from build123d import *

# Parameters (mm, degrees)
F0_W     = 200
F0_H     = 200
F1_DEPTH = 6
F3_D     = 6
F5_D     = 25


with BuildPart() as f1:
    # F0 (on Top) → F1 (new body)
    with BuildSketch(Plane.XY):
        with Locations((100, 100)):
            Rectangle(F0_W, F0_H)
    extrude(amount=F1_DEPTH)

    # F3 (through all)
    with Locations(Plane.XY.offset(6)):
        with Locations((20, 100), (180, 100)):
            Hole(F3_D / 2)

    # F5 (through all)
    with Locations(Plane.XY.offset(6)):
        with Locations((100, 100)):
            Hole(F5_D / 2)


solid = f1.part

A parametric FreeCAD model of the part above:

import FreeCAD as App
import Part
import Sketcher

V = App.Vector

doc = App.newDocument("Part")
body = doc.addObject("PartDesign::Body", "Body")

# Sketch on XY plane
sketch1 = body.newObject("Sketcher::SketchObject", "Sketch")
sketch1.AttachmentSupport = (doc.getObject("XY_Plane"), [""])
sketch1.MapMode = "FlatFace"
sketch1.addGeometry(Part.LineSegment(V(0, 200, 0), V(0, 0, 0)), False)
sketch1.addGeometry(Part.LineSegment(V(0, 0, 0), V(200, 0, 0)), False)
sketch1.addGeometry(Part.LineSegment(V(200, 0, 0), V(200, 200, 0)), False)
sketch1.addGeometry(Part.LineSegment(V(200, 200, 0), V(0, 200, 0)), False)
sketch1.addConstraint(Sketcher.Constraint("Coincident", 0, 2, 1, 1))
sketch1.addConstraint(Sketcher.Constraint("Coincident", 1, 2, 2, 1))
sketch1.addConstraint(Sketcher.Constraint("Coincident", 2, 2, 3, 1))
sketch1.addConstraint(Sketcher.Constraint("Coincident", 3, 2, 0, 1))
sketch1.addConstraint(Sketcher.Constraint("Vertical", 0))
sketch1.addConstraint(Sketcher.Constraint("Horizontal", 1))
sketch1.addConstraint(Sketcher.Constraint("Vertical", 2))
sketch1.addConstraint(Sketcher.Constraint("Horizontal", 3))
sketch1.addConstraint(Sketcher.Constraint("Coincident", 0, 2, -1, 1))
sketch1.addConstraint(Sketcher.Constraint("Equal", 3, 0))
sketch1.addConstraint(Sketcher.Constraint("DistanceX", 1, 1, 1, 2, 200.0))
pad1 = body.newObject("PartDesign::Pad", "Pad")
pad1.Profile = sketch1
pad1.Length = 6

# Sketch on XY plane
sketch2 = body.newObject("Sketcher::SketchObject", "Sketch001")
sketch2.AttachmentSupport = (doc.getObject("XY_Plane"), [""])
sketch2.MapMode = "FlatFace"
sketch2.AttachmentOffset = App.Placement(V(0, 0, 6), App.Rotation())
sketch2.addGeometry(Part.Circle(V(20, 100, 0), V(0, 0, 1), 3), False)
sketch2.addGeometry(Part.Circle(V(180, 100, 0), V(0, 0, 1), 3), False)
sketch2.addConstraint(Sketcher.Constraint("Equal", 0, 1))
sketch2.addConstraint(Sketcher.Constraint("Horizontal", 0, 3, 1, 3))
sketch2.addConstraint(Sketcher.Constraint("Diameter", 0, 6.0))
sketch2.addConstraint(Sketcher.Constraint("DistanceX", -1, 1, 0, 3, 20.0))
sketch2.addConstraint(Sketcher.Constraint("DistanceY", -1, 1, 0, 3, 100.0))
sketch2.addConstraint(Sketcher.Constraint("DistanceX", -1, 1, 1, 3, 180.0))
doc.recompute()
hole = body.newObject("PartDesign::Hole", "Hole")
hole.Profile = sketch2
hole.ThreadType = "None"
hole.Diameter = 6
hole.DepthType = "ThroughAll"

# Sketch on XY plane
sketch3 = body.newObject("Sketcher::SketchObject", "Sketch002")
sketch3.AttachmentSupport = (doc.getObject("XY_Plane"), [""])
sketch3.MapMode = "FlatFace"
sketch3.AttachmentOffset = App.Placement(V(0, 0, 6), App.Rotation())
sketch3.addGeometry(Part.Circle(V(100, 100, 0), V(0, 0, 1), 12), False)
sketch3.addConstraint(Sketcher.Constraint("Diameter", 0, 25.0))
sketch3.addConstraint(Sketcher.Constraint("DistanceX", -1, 1, 0, 3, 100.0))
sketch3.addConstraint(Sketcher.Constraint("DistanceY", -1, 1, 0, 3, 100.0))
doc.recompute()
hole2 = body.newObject("PartDesign::Hole", "Hole001")
hole2.Profile = sketch3
hole2.ThreadType = "None"
hole2.Diameter = 25
hole2.DepthType = "ThroughAll"

doc.recompute()
